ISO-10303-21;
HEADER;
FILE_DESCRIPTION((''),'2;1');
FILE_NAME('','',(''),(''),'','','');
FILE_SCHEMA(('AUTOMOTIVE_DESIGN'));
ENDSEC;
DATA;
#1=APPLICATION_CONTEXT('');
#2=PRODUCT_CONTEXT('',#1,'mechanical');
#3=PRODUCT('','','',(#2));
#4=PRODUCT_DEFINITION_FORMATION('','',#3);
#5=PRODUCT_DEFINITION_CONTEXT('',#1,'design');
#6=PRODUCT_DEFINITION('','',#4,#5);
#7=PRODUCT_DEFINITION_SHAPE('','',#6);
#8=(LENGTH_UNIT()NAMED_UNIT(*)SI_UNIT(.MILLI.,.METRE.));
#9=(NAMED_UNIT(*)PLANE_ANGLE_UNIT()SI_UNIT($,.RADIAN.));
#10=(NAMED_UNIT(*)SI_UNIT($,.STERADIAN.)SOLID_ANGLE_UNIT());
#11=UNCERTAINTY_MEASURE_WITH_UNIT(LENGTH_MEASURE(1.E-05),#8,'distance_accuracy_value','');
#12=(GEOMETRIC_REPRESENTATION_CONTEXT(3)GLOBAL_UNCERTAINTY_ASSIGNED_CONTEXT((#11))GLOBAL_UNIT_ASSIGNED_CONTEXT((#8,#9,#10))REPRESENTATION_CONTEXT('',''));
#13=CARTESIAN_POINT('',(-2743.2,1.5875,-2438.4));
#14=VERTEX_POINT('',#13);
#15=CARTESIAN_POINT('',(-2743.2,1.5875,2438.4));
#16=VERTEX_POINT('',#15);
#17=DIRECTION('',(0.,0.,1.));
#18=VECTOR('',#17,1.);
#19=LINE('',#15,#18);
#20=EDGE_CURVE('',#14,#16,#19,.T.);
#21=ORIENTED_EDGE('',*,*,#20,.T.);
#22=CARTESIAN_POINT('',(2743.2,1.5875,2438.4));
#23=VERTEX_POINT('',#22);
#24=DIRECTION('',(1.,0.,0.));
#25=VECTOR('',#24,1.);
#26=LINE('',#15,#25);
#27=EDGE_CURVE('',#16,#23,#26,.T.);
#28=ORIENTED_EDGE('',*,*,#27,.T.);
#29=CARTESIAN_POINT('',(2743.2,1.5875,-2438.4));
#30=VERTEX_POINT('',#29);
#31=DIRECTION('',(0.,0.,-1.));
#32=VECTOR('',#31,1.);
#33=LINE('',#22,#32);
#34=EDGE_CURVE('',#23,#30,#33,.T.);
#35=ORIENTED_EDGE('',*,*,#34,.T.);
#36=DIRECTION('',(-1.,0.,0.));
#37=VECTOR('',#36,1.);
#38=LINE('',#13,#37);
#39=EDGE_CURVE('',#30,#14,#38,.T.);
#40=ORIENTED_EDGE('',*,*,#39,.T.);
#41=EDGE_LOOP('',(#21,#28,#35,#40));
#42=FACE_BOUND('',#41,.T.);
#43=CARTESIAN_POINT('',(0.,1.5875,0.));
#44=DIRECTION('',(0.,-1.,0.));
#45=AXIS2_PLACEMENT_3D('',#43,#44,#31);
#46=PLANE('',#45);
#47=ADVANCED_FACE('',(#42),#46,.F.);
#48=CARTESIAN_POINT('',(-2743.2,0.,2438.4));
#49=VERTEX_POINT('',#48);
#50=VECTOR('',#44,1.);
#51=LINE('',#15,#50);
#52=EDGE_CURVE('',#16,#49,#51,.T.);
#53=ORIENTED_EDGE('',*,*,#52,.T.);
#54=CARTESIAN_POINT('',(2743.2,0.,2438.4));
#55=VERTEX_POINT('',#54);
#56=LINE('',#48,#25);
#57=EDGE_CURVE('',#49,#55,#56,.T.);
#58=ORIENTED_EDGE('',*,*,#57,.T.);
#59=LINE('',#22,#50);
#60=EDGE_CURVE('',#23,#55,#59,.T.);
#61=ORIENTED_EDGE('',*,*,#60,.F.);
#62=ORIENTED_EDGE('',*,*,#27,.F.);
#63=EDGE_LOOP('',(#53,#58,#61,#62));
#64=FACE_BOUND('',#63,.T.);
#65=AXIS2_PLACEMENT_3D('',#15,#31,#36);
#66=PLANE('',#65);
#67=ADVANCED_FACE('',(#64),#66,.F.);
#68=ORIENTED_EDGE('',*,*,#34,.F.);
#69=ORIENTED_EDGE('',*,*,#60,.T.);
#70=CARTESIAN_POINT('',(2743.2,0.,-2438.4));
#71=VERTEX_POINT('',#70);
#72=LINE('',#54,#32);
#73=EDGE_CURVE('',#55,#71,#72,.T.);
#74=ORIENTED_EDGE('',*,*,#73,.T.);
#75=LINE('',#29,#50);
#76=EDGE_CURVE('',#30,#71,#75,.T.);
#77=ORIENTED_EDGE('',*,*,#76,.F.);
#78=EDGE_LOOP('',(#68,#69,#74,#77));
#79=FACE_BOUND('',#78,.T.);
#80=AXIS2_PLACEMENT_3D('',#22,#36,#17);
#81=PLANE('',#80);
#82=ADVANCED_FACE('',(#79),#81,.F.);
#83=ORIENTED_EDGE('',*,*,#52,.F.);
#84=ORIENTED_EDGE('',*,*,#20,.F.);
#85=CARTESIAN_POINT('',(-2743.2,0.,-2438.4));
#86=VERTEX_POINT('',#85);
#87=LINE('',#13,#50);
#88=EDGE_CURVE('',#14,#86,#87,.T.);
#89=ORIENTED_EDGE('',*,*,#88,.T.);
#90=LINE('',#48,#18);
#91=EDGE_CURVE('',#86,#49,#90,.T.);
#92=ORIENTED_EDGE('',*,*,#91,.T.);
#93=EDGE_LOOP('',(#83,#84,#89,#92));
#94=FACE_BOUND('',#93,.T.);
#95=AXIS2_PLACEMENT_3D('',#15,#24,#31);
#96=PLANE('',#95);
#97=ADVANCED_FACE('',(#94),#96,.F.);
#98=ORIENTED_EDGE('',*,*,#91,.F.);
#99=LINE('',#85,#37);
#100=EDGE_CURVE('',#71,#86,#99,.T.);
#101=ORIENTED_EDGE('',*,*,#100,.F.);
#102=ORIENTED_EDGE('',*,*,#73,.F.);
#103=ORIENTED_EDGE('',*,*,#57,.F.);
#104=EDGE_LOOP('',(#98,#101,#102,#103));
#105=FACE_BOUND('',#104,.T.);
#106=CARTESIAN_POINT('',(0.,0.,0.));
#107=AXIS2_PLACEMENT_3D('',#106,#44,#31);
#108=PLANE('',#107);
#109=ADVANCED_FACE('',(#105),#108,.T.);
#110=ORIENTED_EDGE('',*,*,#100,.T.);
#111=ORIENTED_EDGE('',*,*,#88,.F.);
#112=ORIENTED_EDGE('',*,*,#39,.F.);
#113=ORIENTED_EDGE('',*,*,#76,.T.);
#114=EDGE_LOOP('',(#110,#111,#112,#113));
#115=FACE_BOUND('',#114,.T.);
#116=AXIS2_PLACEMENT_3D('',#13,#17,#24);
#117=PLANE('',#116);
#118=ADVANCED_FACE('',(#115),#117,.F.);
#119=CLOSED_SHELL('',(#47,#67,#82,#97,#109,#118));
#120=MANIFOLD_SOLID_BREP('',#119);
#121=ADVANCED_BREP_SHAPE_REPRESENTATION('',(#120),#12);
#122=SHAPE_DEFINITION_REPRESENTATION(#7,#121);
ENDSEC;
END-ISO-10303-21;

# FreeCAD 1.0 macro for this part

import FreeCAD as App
import Part
import Sketcher
Q = App.Units.Quantity


def add_polygon(sketch, points):
    """Adds a closed chain of lines whose ends are joined by coincident constraints."""
    first, n = sketch.GeometryCount, len(points)
    for a, b in zip(points, points[1:] + points[:1]):
        sketch.addGeometry(Part.LineSegment(App.Vector(*a, 0), App.Vector(*b, 0)), False)
    for i in range(n):
        sketch.addConstraint(Sketcher.Constraint("Coincident", first + i, 2, first + (i + 1) % n, 1))

doc = App.newDocument("Part")
body = doc.addObject("PartDesign::Body", "Body")

# Sketch on XZ plane
sketch1 = doc.addObject("Sketcher::SketchObject", "Sketch")
body.addObject(sketch1)
sketch1.AttachmentSupport = (doc.XZ_Plane, [""])
sketch1.MapMode = "FlatFace"
add_polygon(sketch1, [(-2743, -2438), (-2743, 2438), (2743, 2438), (2743, -2438)])  # lines 0-3
sketch1.addConstraint([
    Sketcher.Constraint("Vertical", 0),
    Sketcher.Constraint("Horizontal", 1),
    Sketcher.Constraint("Vertical", 2),
    Sketcher.Constraint("Horizontal", 3),
    Sketcher.Constraint("Symmetric", 0, 2, 2, 2, -1, 1),
    Sketcher.Constraint("DistanceX", 1, 1, 1, 2, Q("216 in")),
    Sketcher.Constraint("DistanceY", 0, 1, 0, 2, Q("192 in")),
])
pad1 = doc.addObject("PartDesign::Pad", "Pad")
body.addObject(pad1)
pad1.Profile = sketch1
pad1.Length = Q("0.0625 in")
pad1.Reversed = True

doc.recompute()
